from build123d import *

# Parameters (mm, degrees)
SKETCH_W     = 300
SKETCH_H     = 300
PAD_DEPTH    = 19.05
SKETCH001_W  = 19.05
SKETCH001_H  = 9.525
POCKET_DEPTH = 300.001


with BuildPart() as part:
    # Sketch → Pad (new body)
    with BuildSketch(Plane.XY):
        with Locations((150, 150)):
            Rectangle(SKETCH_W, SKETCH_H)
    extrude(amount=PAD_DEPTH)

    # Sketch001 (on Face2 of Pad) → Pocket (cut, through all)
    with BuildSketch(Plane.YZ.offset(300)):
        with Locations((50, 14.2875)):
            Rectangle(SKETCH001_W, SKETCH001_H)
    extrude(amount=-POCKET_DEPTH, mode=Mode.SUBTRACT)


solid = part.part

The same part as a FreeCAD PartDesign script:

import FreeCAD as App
import Part
import Sketcher

V = App.Vector
Q = App.Units.Quantity


def add_polygon(sketch, points):
    """Adds a closed chain of lines whose ends are joined by coincident constraints."""
    first, n = sketch.GeometryCount, len(points)
    for a, b in zip(points, points[1:] + points[:1]):
        sketch.addGeometry(Part.LineSegment(App.Vector(*a, 0), App.Vector(*b, 0)), False)
    for i in range(n):
        sketch.addConstraint(Sketcher.Constraint("Coincident", first + i, 2, first + (i + 1) % n, 1))

doc = App.newDocument("Part")
params = doc.addObject("Spreadsheet::Sheet", "Params")
for row, (alias, value) in enumerate([
    ("pad1_length", "0.75 in"),
    ("sketch2_width", "0.75 in"),
    ("sketch2_height", "0.375 in"),
], start=1):
    params.set(f"A{row}", alias)
    params.set(f"B{row}", "=" + value)
    params.setAlias(f"B{row}", alias)

body = doc.addObject("PartDesign::Body", "Body")

sketch1 = body.newObject("Sketcher::SketchObject", "Sketch")
sketch1.AttachmentSupport = (doc.getObject("XY_Plane"), [""])
sketch1.MapMode = "FlatFace"
add_polygon(sketch1, [(0, 300), (0, 0), (300, 0), (300, 300)])
sketch1.addConstraint([
    Sketcher.Constraint("Vertical", 0),
    Sketcher.Constraint("Horizontal", 1),
    Sketcher.Constraint("Vertical", 2),
    Sketcher.Constraint("Horizontal", 3),
    Sketcher.Constraint("Coincident", 0, 2, -1, 1),
    Sketcher.Constraint("Equal", 3, 0),
    Sketcher.Constraint("DistanceX", 1, 1, 1, 2, Q("300 mm")),
])
pad1 = body.newObject("PartDesign::Pad", "Pad")
pad1.Profile = sketch1
pad1.setExpression("Length", "Params.pad1_length")

sketch2 = body.newObject("Sketcher::SketchObject", "Sketch001")
sketch2.AttachmentSupport = (doc.getObject("YZ_Plane"), [""])
sketch2.MapMode = "FlatFace"
sketch2.AttachmentOffset = App.Placement(V(0, 0, 300), App.Rotation())
add_polygon(sketch2, [(40, 19), (40, 10), (60, 10), (60, 19)])
sketch2.addConstraint([
    Sketcher.Constraint("Vertical", 0),
    Sketcher.Constraint("Horizontal", 1),
    Sketcher.Constraint("Vertical", 2),
    Sketcher.Constraint("Horizontal", 3),
    Sketcher.Constraint("DistanceX", 1, 1, 1, 2, Q("0.75 in")),
    Sketcher.Constraint("DistanceY", 0, 2, 0, 1, Q("0.375 in")),
    Sketcher.Constraint("DistanceY", -1, 1, 2, 2, Q("0.75 in")),
    Sketcher.Constraint("DistanceX", -1, 1, 0, 2, Q("40.475 mm")),
])
sketch2.setExpression("Constraints[8]", "Params.sketch2_width")
sketch2.setExpression("Constraints[9]", "Params.sketch2_height")
pocket1 = body.newObject("PartDesign::Pocket", "Pocket")
pocket1.Profile = sketch2
pocket1.Type = "ThroughAll"

doc.recompute()
